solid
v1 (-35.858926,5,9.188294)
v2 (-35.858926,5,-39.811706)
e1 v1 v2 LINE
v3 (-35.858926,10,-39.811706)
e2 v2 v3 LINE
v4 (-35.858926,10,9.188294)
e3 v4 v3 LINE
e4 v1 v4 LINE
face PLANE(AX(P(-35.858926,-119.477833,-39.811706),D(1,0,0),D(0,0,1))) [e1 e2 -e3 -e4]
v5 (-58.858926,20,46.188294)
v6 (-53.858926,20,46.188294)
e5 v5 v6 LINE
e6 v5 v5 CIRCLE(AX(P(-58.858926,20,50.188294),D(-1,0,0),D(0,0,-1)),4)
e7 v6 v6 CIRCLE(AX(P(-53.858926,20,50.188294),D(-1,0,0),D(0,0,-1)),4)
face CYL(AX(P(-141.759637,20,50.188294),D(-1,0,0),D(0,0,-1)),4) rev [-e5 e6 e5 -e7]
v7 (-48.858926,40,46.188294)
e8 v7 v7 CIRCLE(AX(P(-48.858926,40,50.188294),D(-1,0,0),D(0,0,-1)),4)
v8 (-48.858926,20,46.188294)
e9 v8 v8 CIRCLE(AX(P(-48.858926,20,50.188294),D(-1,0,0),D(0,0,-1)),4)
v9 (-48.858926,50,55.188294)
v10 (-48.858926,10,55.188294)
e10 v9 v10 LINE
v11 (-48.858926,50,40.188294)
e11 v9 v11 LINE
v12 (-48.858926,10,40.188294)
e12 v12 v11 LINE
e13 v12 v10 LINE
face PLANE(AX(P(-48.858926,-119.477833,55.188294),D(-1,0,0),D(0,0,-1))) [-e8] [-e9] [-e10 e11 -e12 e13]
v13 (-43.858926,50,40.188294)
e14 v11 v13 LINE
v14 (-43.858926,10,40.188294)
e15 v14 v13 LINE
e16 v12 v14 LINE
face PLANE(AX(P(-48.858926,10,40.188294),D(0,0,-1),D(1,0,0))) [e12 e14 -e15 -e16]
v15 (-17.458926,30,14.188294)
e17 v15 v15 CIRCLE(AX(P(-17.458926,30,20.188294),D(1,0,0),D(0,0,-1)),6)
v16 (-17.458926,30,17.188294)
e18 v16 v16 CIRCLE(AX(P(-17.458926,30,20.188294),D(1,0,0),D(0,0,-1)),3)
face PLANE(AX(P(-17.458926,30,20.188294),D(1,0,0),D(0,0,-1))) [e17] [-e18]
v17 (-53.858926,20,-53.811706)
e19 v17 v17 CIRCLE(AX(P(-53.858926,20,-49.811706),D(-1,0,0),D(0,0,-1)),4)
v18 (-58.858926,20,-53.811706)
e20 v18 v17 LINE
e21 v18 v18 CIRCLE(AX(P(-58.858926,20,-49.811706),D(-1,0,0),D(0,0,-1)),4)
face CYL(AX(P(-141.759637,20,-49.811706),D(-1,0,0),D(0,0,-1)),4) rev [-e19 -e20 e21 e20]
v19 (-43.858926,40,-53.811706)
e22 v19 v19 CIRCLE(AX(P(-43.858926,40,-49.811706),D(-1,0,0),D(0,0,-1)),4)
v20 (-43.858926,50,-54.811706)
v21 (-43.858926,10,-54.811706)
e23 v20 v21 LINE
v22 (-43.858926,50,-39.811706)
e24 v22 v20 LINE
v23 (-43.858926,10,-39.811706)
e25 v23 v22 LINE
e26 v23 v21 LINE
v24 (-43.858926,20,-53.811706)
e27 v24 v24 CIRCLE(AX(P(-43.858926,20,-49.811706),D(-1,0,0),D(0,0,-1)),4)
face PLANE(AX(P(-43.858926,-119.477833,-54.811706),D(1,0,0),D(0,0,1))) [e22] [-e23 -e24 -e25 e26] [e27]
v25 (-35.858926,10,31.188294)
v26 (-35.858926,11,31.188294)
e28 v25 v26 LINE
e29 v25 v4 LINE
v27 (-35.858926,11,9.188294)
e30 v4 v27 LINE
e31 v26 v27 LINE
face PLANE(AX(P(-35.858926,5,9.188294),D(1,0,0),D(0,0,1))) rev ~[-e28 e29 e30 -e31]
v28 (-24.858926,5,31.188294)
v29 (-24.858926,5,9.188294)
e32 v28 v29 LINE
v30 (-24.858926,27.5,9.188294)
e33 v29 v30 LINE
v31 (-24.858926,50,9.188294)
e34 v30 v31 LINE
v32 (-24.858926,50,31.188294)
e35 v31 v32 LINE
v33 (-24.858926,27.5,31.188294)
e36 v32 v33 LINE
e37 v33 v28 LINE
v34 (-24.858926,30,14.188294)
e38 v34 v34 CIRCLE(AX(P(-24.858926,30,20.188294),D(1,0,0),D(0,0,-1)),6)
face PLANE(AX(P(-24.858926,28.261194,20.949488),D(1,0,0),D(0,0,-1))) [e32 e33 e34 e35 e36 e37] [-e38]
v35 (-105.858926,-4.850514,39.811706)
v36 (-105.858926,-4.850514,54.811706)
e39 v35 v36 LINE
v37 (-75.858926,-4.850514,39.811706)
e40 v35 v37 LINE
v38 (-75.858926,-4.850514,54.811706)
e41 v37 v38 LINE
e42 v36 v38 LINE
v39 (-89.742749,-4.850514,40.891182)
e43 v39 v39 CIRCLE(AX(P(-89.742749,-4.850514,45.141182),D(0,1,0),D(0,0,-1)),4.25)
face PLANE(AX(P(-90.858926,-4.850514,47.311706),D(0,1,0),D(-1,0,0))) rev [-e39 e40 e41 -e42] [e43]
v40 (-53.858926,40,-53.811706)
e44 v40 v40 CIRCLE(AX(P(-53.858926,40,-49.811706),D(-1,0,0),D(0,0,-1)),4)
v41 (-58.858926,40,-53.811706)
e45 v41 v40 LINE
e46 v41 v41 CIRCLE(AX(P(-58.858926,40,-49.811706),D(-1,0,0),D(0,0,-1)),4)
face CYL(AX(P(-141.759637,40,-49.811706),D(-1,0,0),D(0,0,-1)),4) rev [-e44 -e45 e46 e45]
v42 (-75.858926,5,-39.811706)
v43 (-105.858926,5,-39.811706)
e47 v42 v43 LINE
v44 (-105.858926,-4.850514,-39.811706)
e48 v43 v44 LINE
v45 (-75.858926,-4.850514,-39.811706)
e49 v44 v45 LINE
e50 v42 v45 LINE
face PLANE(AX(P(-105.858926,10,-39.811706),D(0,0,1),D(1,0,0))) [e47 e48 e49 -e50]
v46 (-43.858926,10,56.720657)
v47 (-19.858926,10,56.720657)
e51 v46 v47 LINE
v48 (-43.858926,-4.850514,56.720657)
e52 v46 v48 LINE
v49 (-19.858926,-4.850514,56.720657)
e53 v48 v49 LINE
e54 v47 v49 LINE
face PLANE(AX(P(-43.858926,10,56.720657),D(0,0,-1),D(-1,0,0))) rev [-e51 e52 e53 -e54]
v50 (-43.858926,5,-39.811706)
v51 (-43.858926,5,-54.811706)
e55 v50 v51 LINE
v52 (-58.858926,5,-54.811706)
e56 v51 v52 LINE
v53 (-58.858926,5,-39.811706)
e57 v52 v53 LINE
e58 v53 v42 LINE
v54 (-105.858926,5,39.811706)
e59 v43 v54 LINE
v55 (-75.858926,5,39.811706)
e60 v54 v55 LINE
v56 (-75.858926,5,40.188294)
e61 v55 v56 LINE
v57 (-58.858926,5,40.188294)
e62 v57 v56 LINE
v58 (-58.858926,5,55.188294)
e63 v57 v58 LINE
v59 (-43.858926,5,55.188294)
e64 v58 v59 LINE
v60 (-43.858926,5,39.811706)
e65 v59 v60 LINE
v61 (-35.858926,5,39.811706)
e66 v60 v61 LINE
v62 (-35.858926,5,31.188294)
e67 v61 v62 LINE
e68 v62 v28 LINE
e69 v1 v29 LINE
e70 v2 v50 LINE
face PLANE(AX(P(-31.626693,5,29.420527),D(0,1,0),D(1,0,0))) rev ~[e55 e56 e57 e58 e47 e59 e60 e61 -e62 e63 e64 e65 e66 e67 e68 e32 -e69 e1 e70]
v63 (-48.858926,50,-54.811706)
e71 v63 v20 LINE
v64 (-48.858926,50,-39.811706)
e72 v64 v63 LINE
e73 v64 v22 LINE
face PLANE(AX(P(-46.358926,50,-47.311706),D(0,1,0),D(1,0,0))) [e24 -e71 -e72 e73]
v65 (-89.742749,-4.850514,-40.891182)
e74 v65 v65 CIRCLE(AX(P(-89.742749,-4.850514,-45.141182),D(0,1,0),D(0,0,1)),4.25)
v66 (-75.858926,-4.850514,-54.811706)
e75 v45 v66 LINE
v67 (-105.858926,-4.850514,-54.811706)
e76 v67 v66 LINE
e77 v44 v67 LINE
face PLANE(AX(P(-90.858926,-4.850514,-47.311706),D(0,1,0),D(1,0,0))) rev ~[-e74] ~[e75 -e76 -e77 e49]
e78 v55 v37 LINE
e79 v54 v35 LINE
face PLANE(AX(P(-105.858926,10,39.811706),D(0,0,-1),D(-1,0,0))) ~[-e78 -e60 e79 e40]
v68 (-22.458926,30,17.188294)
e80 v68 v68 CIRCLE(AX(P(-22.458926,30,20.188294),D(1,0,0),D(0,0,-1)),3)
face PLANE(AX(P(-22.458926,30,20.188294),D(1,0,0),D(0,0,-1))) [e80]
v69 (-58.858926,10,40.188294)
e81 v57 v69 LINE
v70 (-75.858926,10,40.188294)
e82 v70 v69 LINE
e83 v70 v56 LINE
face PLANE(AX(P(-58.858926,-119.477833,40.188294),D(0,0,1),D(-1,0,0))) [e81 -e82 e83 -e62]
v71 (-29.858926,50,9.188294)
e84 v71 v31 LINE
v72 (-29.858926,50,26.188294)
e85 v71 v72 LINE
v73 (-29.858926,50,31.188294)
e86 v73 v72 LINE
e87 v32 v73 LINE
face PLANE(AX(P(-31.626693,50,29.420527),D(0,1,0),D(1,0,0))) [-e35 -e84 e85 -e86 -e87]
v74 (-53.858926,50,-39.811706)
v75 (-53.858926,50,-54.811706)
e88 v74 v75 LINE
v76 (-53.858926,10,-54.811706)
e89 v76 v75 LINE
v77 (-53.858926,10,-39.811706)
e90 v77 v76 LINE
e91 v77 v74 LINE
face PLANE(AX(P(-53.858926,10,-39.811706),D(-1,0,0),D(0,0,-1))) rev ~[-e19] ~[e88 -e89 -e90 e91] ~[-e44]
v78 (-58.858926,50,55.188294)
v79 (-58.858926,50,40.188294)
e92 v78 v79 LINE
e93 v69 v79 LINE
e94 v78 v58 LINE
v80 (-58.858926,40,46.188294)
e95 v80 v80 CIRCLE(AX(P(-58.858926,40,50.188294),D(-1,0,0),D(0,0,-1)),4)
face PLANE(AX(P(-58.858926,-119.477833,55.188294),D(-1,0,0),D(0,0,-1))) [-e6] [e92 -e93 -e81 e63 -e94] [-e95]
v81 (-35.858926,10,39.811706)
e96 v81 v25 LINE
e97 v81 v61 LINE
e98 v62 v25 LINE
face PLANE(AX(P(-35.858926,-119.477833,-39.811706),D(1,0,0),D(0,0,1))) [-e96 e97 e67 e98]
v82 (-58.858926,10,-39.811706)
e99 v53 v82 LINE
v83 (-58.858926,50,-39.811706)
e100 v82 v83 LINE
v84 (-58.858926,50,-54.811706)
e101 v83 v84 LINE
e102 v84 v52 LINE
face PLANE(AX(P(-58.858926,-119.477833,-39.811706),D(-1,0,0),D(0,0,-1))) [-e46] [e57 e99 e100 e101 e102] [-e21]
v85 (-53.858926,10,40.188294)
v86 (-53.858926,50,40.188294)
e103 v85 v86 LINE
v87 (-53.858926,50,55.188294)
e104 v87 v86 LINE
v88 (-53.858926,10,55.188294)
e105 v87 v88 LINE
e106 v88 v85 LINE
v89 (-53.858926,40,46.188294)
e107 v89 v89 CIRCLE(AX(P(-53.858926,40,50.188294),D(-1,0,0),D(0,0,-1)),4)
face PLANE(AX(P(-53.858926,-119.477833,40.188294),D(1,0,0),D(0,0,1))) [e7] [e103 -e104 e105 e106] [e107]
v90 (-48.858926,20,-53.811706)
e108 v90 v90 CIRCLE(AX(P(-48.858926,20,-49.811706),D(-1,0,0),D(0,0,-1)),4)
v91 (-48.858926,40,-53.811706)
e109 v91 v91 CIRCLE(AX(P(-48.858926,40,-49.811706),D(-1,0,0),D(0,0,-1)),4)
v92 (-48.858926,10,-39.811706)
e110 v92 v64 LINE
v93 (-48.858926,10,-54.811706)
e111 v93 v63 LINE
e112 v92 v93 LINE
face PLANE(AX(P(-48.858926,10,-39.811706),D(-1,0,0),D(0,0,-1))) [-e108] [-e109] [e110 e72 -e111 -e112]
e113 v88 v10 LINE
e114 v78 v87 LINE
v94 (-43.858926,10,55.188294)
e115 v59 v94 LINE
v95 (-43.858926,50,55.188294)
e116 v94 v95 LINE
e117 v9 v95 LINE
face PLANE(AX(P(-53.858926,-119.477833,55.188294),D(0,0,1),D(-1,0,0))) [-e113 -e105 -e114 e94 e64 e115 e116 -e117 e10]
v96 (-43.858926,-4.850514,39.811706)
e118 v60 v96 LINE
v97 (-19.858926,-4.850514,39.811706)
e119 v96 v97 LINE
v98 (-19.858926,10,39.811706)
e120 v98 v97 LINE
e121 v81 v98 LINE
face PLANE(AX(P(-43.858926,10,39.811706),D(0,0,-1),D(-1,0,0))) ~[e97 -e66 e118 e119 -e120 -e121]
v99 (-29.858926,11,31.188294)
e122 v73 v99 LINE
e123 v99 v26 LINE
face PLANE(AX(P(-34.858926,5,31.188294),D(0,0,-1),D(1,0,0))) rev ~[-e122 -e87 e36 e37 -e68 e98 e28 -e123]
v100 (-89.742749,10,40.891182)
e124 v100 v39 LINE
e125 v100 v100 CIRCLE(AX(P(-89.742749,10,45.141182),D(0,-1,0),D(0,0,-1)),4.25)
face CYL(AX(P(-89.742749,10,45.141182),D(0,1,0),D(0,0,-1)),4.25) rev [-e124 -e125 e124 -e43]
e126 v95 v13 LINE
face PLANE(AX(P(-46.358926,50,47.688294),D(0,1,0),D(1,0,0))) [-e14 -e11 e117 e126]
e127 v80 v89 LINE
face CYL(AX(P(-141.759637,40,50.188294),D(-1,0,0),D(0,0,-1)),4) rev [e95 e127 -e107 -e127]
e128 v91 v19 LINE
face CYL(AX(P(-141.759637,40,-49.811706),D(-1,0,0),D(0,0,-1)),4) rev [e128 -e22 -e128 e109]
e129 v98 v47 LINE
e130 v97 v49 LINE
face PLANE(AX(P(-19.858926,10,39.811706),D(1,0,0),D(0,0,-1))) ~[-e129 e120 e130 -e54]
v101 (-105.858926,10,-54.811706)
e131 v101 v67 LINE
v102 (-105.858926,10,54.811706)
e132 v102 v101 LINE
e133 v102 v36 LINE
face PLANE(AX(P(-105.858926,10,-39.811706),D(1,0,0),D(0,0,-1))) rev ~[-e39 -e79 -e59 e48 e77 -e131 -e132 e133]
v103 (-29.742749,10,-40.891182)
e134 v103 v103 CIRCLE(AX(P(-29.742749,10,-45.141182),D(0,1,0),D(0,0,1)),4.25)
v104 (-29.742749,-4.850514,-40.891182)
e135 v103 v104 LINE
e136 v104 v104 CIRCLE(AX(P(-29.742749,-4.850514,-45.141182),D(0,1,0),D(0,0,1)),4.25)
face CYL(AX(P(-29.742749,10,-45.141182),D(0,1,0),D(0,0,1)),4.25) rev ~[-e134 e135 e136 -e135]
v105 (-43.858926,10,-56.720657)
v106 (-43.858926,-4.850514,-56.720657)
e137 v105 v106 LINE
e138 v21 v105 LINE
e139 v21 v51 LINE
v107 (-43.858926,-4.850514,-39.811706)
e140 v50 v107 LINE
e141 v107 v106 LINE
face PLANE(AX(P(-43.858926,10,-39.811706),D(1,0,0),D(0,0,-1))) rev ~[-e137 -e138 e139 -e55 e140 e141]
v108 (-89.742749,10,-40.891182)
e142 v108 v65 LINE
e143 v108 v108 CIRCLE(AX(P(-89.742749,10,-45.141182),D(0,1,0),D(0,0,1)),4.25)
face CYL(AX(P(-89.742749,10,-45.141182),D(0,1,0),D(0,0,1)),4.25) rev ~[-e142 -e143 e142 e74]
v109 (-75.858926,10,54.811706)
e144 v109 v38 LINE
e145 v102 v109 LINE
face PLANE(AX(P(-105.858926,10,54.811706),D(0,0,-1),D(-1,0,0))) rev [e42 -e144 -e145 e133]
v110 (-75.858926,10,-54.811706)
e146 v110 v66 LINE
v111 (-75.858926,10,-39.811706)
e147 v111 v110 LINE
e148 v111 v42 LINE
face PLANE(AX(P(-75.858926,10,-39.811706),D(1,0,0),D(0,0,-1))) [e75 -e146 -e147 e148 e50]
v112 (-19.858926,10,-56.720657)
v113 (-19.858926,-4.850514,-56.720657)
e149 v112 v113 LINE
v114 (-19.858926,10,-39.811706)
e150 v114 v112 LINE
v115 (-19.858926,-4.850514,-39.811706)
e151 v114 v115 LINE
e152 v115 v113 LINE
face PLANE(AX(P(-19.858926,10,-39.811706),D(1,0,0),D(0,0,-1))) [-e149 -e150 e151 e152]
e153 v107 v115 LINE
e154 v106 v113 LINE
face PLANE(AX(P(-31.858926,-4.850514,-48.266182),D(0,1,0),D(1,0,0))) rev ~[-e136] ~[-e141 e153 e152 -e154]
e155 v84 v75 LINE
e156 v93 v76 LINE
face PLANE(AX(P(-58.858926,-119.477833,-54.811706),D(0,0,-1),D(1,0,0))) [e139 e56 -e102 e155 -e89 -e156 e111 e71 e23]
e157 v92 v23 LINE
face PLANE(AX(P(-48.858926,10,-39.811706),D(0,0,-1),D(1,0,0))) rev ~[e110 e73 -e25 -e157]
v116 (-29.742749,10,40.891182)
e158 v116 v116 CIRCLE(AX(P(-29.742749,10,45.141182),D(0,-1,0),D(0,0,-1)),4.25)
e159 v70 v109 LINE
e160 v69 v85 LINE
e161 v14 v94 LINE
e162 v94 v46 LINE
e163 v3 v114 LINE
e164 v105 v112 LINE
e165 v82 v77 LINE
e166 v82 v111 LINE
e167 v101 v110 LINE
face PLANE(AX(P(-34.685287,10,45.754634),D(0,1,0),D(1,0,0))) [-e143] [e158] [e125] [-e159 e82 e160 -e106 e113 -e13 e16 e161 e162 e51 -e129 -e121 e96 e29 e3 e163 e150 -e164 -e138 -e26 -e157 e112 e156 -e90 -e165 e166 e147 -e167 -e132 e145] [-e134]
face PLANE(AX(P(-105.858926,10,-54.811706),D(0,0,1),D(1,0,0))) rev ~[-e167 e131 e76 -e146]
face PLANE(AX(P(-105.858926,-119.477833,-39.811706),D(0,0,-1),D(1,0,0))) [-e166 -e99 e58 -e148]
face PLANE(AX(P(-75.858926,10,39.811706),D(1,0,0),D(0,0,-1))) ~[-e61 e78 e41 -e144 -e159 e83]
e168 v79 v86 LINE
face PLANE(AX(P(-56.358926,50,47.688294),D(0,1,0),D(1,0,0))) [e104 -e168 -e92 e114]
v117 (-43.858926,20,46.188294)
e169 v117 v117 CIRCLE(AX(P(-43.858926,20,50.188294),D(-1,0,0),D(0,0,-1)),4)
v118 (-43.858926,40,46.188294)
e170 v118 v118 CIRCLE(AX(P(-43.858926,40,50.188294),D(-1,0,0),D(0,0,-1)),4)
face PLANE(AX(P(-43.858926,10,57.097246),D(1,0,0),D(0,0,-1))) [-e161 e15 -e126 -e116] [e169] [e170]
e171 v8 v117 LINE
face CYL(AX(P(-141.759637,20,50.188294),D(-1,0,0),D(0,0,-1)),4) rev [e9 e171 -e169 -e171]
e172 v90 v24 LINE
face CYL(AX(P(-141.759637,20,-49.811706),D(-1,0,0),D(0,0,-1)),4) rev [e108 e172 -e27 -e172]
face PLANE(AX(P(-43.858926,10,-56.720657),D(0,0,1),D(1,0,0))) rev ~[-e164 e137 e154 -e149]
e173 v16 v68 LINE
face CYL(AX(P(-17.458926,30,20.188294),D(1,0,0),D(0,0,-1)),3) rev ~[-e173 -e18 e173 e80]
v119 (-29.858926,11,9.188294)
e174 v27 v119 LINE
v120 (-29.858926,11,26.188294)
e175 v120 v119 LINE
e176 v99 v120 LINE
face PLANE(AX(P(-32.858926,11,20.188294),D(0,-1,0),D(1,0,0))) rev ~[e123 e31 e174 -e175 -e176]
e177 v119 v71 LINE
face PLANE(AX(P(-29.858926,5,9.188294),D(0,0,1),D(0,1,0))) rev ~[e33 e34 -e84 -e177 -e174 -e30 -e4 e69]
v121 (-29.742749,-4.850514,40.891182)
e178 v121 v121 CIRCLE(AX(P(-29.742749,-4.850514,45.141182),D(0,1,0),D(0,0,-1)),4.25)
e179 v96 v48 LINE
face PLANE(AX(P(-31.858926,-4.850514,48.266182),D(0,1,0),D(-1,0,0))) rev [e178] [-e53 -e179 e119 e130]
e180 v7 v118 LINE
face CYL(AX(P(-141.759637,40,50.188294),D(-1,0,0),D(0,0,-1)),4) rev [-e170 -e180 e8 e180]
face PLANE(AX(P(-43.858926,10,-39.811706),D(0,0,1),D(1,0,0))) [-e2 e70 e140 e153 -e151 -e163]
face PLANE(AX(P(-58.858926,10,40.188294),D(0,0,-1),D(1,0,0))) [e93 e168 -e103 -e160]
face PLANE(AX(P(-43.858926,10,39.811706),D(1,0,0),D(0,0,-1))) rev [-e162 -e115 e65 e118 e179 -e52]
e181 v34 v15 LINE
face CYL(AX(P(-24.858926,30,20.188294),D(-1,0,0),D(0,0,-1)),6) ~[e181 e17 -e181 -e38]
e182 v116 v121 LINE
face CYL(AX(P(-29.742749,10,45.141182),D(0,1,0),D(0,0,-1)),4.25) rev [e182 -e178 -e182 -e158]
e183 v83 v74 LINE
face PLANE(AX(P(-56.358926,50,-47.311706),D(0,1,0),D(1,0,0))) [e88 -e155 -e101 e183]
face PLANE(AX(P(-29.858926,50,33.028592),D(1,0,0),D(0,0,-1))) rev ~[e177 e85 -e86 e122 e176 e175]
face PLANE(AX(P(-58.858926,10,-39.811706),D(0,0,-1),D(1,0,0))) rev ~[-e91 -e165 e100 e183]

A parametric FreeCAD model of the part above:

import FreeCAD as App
import Part
import Sketcher
from FreeCAD import Vector
Q = App.Units.Quantity

doc = App.newDocument("Part")
body = doc.addObject("PartDesign::Body", "Body")

# Sketch on XZ plane
sketch1 = doc.addObject("Sketcher::SketchObject", "Sketch")
body.addObject(sketch1)
sketch1.AttachmentSupport = (doc.XZ_Plane, [""])
sketch1.MapMode = "FlatFace"
sketch1.addGeometry([
    Part.LineSegment(Vector(-105.858926, -60.831255, 0), Vector(-105.858926, 60.831255, 0)),
    Part.LineSegment(Vector(-105.858926, 60.831255, 0), Vector(105.858926, 60.831255, 0)),
    Part.LineSegment(Vector(105.858926, 60.831255, 0), Vector(105.858926, -60.831255, 0)),
    Part.LineSegment(Vector(105.858926, -60.831255, 0), Vector(-105.858926, -60.831255, 0)),
], False)
sketch1.addConstraint([
    Sketcher.Constraint("Coincident", 0, 2, 1, 1),
    Sketcher.Constraint("Coincident", 1, 2, 2, 1),
    Sketcher.Constraint("Coincident", 2, 2, 3, 1),
    Sketcher.Constraint("Coincident", 3, 2, 0, 1),
    Sketcher.Constraint("Vertical", 0),
    Sketcher.Constraint("Horizontal", 1),
    Sketcher.Constraint("Vertical", 2),
    Sketcher.Constraint("Horizontal", 3),
    Sketcher.Constraint("Symmetric", 0, 2, 2, 2, -1, 1),
    Sketcher.Constraint("DistanceX", 1, 1, 1, 2, Q("211.717851 mm")),
    Sketcher.Constraint("DistanceY", 0, 1, 0, 2, Q("121.662509 mm")),
])
pad1 = doc.addObject("PartDesign::Pad", "Pad")
body.addObject(pad1)
pad1.Profile = sketch1
pad1.Length = 10
pad1.Reversed = True

# Sketch on XZ plane
sketch2 = doc.addObject("Sketcher::SketchObject", "Sketch001")
body.addObject(sketch2)
sketch2.AttachmentSupport = (doc.XZ_Plane, [""])
sketch2.MapMode = "FlatFace"
sketch2.AttachmentOffset = App.Placement(Vector(0, 0, -10), App.Rotation())
sketch2.addGeometry([
    Part.LineSegment(Vector(-48.858926, -54.811706, 0), Vector(-48.858926, -39.811706, 0)),  # 0
    Part.LineSegment(Vector(-48.858926, -39.811706, 0), Vector(-43.858926, -39.811706, 0)),  # 1
    Part.LineSegment(Vector(-43.858926, -39.811706, 0), Vector(-43.858926, -54.811706, 0)),  # 2
    Part.LineSegment(Vector(-43.858926, -54.811706, 0), Vector(-48.858926, -54.811706, 0)),  # 3
    Part.LineSegment(Vector(-58.858926, -54.811706, 0), Vector(-58.858926, -39.811706, 0)),  # 4
    Part.LineSegment(Vector(-58.858926, -39.811706, 0), Vector(-53.858926, -39.811706, 0)),  # 5
    Part.LineSegment(Vector(-53.858926, -39.811706, 0), Vector(-53.858926, -54.811706, 0)),  # 6
    Part.LineSegment(Vector(-53.858926, -54.811706, 0), Vector(-58.858926, -54.811706, 0)),  # 7
    Part.LineSegment(Vector(-48.858926, 40.188294, 0), Vector(-48.858926, 55.188294, 0)),  # 8
    Part.LineSegment(Vector(-48.858926, 55.188294, 0), Vector(-43.858926, 55.188294, 0)),  # 9
    Part.LineSegment(Vector(-43.858926, 55.188294, 0), Vector(-43.858926, 40.188294, 0)),  # 10
    Part.LineSegment(Vector(-43.858926, 40.188294, 0), Vector(-48.858926, 40.188294, 0)),  # 11
    Part.LineSegment(Vector(-58.858926, 40.188294, 0), Vector(-58.858926, 55.188294, 0)),  # 12
    Part.LineSegment(Vector(-58.858926, 55.188294, 0), Vector(-53.858926, 55.188294, 0)),  # 13
    Part.LineSegment(Vector(-53.858926, 55.188294, 0), Vector(-53.858926, 40.188294, 0)),  # 14
    Part.LineSegment(Vector(-53.858926, 40.188294, 0), Vector(-58.858926, 40.188294, 0)),  # 15
], False)
sketch2.addConstraint([
    Sketcher.Constraint("Coincident", 0, 2, 1, 1),
    Sketcher.Constraint("Coincident", 1, 2, 2, 1),
    Sketcher.Constraint("Coincident", 2, 2, 3, 1),
    Sketcher.Constraint("Coincident", 3, 2, 0, 1),
    Sketcher.Constraint("Coincident", 4, 2, 5, 1),
    Sketcher.Constraint("Coincident", 5, 2, 6, 1),
    Sketcher.Constraint("Coincident", 6, 2, 7, 1),
    Sketcher.Constraint("Coincident", 7, 2, 4, 1),
    Sketcher.Constraint("Coincident", 8, 2, 9, 1),
    Sketcher.Constraint("Coincident", 9, 2, 10, 1),
    Sketcher.Constraint("Coincident", 10, 2, 11, 1),
    Sketcher.Constraint("Coincident", 11, 2, 8, 1),
    Sketcher.Constraint("Coincident", 12, 2, 13, 1),
    Sketcher.Constraint("Coincident", 13, 2, 14, 1),
    Sketcher.Constraint("Coincident", 14, 2, 15, 1),
    Sketcher.Constraint("Coincident", 15, 2, 12, 1),
    Sketcher.Constraint("Vertical", 0),
    Sketcher.Constraint("Horizontal", 1),
    Sketcher.Constraint("Vertical", 2),
    Sketcher.Constraint("Horizontal", 3),
    Sketcher.Constraint("Vertical", 4),
    Sketcher.Constraint("Horizontal", 5),
    Sketcher.Constraint("Vertical", 6),
    Sketcher.Constraint("Horizontal", 7),
    Sketcher.Constraint("Vertical", 8),
    Sketcher.Constraint("Horizontal", 9),
    Sketcher.Constraint("Vertical", 10),
    Sketcher.Constraint("Horizontal", 11),
    Sketcher.Constraint("Vertical", 12),
    Sketcher.Constraint("Horizontal", 13),
    Sketcher.Constraint("Vertical", 14),
    Sketcher.Constraint("Horizontal", 15),
    Sketcher.Constraint("Horizontal", 1, 2, 4, 2),
    Sketcher.Constraint("Horizontal", 3, 2, 6, 2),
    Sketcher.Constraint("Horizontal", 9, 2, 12, 2),
    Sketcher.Constraint("Horizontal", 11, 2, 14, 2),
    Sketcher.Constraint("Vertical", 3, 2, 8, 2),
    Sketcher.Constraint("Vertical", 2, 2, 9, 2),
    Sketcher.Constraint("Vertical", 7, 2, 12, 2),
    Sketcher.Constraint("Vertical", 6, 2, 13, 2),
    Sketcher.Constraint("Equal", 3, 5),
    Sketcher.Constraint("Equal", 6, 8),
    Sketcher.Constraint("DistanceX", 1, 1, 1, 2, Q("5 mm")),
    Sketcher.Constraint("DistanceY", 0, 1, 0, 2, Q("15 mm")),
    Sketcher.Constraint("DistanceX", 4, 2, 0, 2, Q("10 mm")),
    Sketcher.Constraint("DistanceY", 0, 2, 8, 2, Q("95 mm")),
    Sketcher.Constraint("DistanceX", 0, 2, -1, 1, Q("48.858926 mm")),
    Sketcher.Constraint("DistanceY", 0, 2, -1, 1, Q("39.811706 mm")),
])
pad2 = doc.addObject("PartDesign::Pad", "Pad001")
body.addObject(pad2)
pad2.Profile = sketch2
pad2.Length = 40
pad2.Reversed = True

# Sketch on XZ plane
sketch3 = doc.addObject("Sketcher::SketchObject", "Sketch002")
body.addObject(sketch3)
sketch3.AttachmentSupport = (doc.XZ_Plane, [""])
sketch3.MapMode = "FlatFace"
sketch3.AttachmentOffset = App.Placement(Vector(0, 0, -10), App.Rotation())
sketch3.addGeometry([
    Part.LineSegment(Vector(-131.784, -86.756, 0), Vector(-131.784, 86.756, 0)),  # 0
    Part.LineSegment(Vector(-131.784, 86.756, 0), Vector(131.784, 86.756, 0)),  # 1
    Part.LineSegment(Vector(131.784, 86.756, 0), Vector(131.784, -86.756, 0)),  # 2
    Part.LineSegment(Vector(131.784, -86.756, 0), Vector(-131.784, -86.756, 0)),  # 3
    Part.LineSegment(Vector(-106.714815, 40.188294, 0), Vector(-105.858926, -39.811706, 0)),  # 4
    Part.LineSegment(Vector(-105.858926, -39.811706, 0), Vector(-58.858926, -39.811706, 0)),  # 5
    Part.LineSegment(Vector(-58.858926, -39.811706, 0), Vector(-58.858926, -54.811706, 0)),  # 6
    Part.LineSegment(Vector(-58.858926, -54.811706, 0), Vector(-43.858926, -54.811706, 0)),  # 7
    Part.LineSegment(Vector(-43.858926, -54.811706, 0), Vector(-43.858926, -39.811706, 0)),  # 8
    Part.LineSegment(Vector(-43.858926, -39.811706, 0), Vector(-35.858926, -39.811706, 0)),  # 9
    Part.LineSegment(Vector(-35.858926, -39.811706, 0), Vector(-35.858926, 40.188294, 0)),  # 10
    Part.LineSegment(Vector(-35.858926, 40.188294, 0), Vector(-43.858926, 40.188294, 0)),  # 11
    Part.LineSegment(Vector(-43.858926, 40.188294, 0), Vector(-43.858926, 55.188294, 0)),  # 12
    Part.LineSegment(Vector(-43.858926, 55.188294, 0), Vector(-48.858926, 55.188294, 0)),  # 13
    Part.LineSegment(Vector(-48.858926, 55.188294, 0), Vector(-48.858926, 40.188294, 0)),  # 14
    Part.LineSegment(Vector(-48.858926, 40.188294, 0), Vector(-53.858926, 40.188294, 0)),  # 15
    Part.LineSegment(Vector(-53.858926, 40.188294, 0), Vector(-53.858926, 55.188294, 0)),  # 16
    Part.LineSegment(Vector(-53.858926, 55.188294, 0), Vector(-58.858926, 55.188294, 0)),  # 17
    Part.LineSegment(Vector(-58.858926, 55.188294, 0), Vector(-58.858926, 40.188294, 0)),  # 18
    Part.LineSegment(Vector(-58.858926, 40.188294, 0), Vector(-106.714815, 40.188294, 0)),  # 19
], False)
sketch3.addConstraint([
    Sketcher.Constraint("Coincident", 0, 2, 1, 1),
    Sketcher.Constraint("Coincident", 1, 2, 2, 1),
    Sketcher.Constraint("Coincident", 2, 2, 3, 1),
    Sketcher.Constraint("Coincident", 3, 2, 0, 1),
    Sketcher.Constraint("Coincident", 4, 2, 5, 1),
    Sketcher.Constraint("Coincident", 5, 2, 6, 1),
    Sketcher.Constraint("Coincident", 6, 2, 7, 1),
    Sketcher.Constraint("Coincident", 7, 2, 8, 1),
    Sketcher.Constraint("Coincident", 8, 2, 9, 1),
    Sketcher.Constraint("Coincident", 9, 2, 10, 1),
    Sketcher.Constraint("Coincident", 10, 2, 11, 1),
    Sketcher.Constraint("Coincident", 11, 2, 12, 1),
    Sketcher.Constraint("Coincident", 12, 2, 13, 1),
    Sketcher.Constraint("Coincident", 13, 2, 14, 1),
    Sketcher.Constraint("Coincident", 14, 2, 15, 1),
    Sketcher.Constraint("Coincident", 15, 2, 16, 1),
    Sketcher.Constraint("Coincident", 16, 2, 17, 1),
    Sketcher.Constraint("Coincident", 17, 2, 18, 1),
    Sketcher.Constraint("Coincident", 18, 2, 19, 1),
    Sketcher.Constraint("Coincident", 19, 2, 4, 1),
    Sketcher.Constraint("Vertical", 0),
    Sketcher.Constraint("Horizontal", 1),
    Sketcher.Constraint("Vertical", 2),
    Sketcher.Constraint("Horizontal", 3),
    Sketcher.Constraint("Horizontal", 5),
    Sketcher.Constraint("Vertical", 6),
    Sketcher.Constraint("Horizontal", 7),
    Sketcher.Constraint("Vertical", 8),
    Sketcher.Constraint("Horizontal", 9),
    Sketcher.Constraint("Vertical", 10),
    Sketcher.Constraint("Horizontal", 11),
    Sketcher.Constraint("Vertical", 12),
    Sketcher.Constraint("Horizontal", 13),
    Sketcher.Constraint("Vertical", 14),
    Sketcher.Constraint("Horizontal", 15),
    Sketcher.Constraint("Vertical", 16),
    Sketcher.Constraint("Horizontal", 17),
    Sketcher.Constraint("Vertical", 18),
    Sketcher.Constraint("Horizontal", 19),
    Sketcher.Constraint("Symmetric", 0, 2, 2, 2, -1, 1),
    Sketcher.Constraint("Horizontal", 5, 2, 8, 2),
    Sketcher.Constraint("Horizontal", 11, 2, 14, 2),
    Sketcher.Constraint("Horizontal", 13, 2, 16, 2),
    Sketcher.Constraint("Horizontal", 15, 2, 18, 2),
    Sketcher.Constraint("Vertical", 8, 2, 11, 2),
    Sketcher.Constraint("Vertical", 6, 2, 17, 2),
    Sketcher.Constraint("Equal", 13, 15),
    Sketcher.Constraint("Equal", 15, 17),
    Sketcher.Constraint("Equal", 7, 6),
    Sketcher.Constraint("Equal", 8, 12),
    Sketcher.Constraint("DistanceX", 5, 1, 5, 2, Q("47 mm")),
    Sketcher.Constraint("DistanceX", 7, 1, 7, 2, Q("15 mm")),
    Sketcher.Constraint("DistanceX", 9, 1, 9, 2, Q("8 mm")),
    Sketcher.Constraint("DistanceY", 10, 1, 10, 2, Q("80 mm")),
    Sketcher.Constraint("DistanceX", 1, 1, 1, 2, Q("263.568 mm")),
    Sketcher.Constraint("DistanceY", 0, 1, 0, 2, Q("173.512 mm")),
    Sketcher.Constraint("DistanceX", 19, 2, 19, 1, Q("47.85589 mm")),
    Sketcher.Constraint("DistanceX", 4, 2, -1, 1, Q("105.858926 mm")),
    Sketcher.Constraint("DistanceY", 4, 2, -1, 1, Q("39.811706 mm")),
])
pocket1 = doc.addObject("PartDesign::Pocket", "Pocket")
body.addObject(pocket1)
pocket1.Profile = sketch3
pocket1.Type = "ThroughAll"
pocket1.Midplane = True

# Sketch on XZ plane
sketch4 = doc.addObject("Sketcher::SketchObject", "Sketch003")
body.addObject(sketch4)
sketch4.AttachmentSupport = (doc.XZ_Plane, [""])
sketch4.MapMode = "FlatFace"
sketch4.addGeometry([
    Part.LineSegment(Vector(-58.858926, 55.188294, 0), Vector(-58.858926, 40.188294, 0)),
    Part.LineSegment(Vector(-58.858926, 40.188294, 0), Vector(-43.858926, 40.188294, 0)),
    Part.LineSegment(Vector(-43.858926, 40.188294, 0), Vector(-43.858926, 55.188294, 0)),
    Part.LineSegment(Vector(-43.858926, 55.188294, 0), Vector(-58.858926, 55.188294, 0)),
], False)
sketch4.addConstraint([
    Sketcher.Constraint("Coincident", 0, 2, 1, 1),
    Sketcher.Constraint("Coincident", 1, 2, 2, 1),
    Sketcher.Constraint("Coincident", 2, 2, 3, 1),
    Sketcher.Constraint("Coincident", 3, 2, 0, 1),
    Sketcher.Constraint("Vertical", 0),
    Sketcher.Constraint("Horizontal", 1),
    Sketcher.Constraint("Vertical", 2),
    Sketcher.Constraint("Horizontal", 3),
    Sketcher.Constraint("Equal", 3, 0),
    Sketcher.Constraint("DistanceX", 1, 1, 1, 2, Q("15 mm")),
    Sketcher.Constraint("DistanceX", 0, 2, -1, 1, Q("58.858926 mm")),
    Sketcher.Constraint("DistanceY", -1, 1, 0, 2, Q("40.188294 mm")),
])
pad3 = doc.addObject("PartDesign::Pad", "Pad002")
body.addObject(pad3)
pad3.Profile = sketch4
pad3.Length = 10
pad3.Reversed = True

# Sketch on XZ plane
sketch5 = doc.addObject("Sketcher::SketchObject", "Sketch004")
body.addObject(sketch5)
sketch5.AttachmentSupport = (doc.XZ_Plane, [""])
sketch5.MapMode = "FlatFace"
sketch5.addGeometry([
    Part.LineSegment(Vector(-225.486095, 144.406419, 0), Vector(-225.486095, -64.432201, 0)),
    Part.LineSegment(Vector(-225.486095, -64.432201, 0), Vector(25.562074, -64.432201, 0)),
    Part.LineSegment(Vector(25.562074, -64.432201, 0), Vector(25.562074, 144.406419, 0)),
    Part.LineSegment(Vector(25.562074, 144.406419, 0), Vector(-225.486095, 144.406419, 0)),
], False)
sketch5.addConstraint([
    Sketcher.Constraint("Coincident", 0, 2, 1, 1),
    Sketcher.Constraint("Coincident", 1, 2, 2, 1),
    Sketcher.Constraint("Coincident", 2, 2, 3, 1),
    Sketcher.Constraint("Coincident", 3, 2, 0, 1),
    Sketcher.Constraint("Vertical", 0),
    Sketcher.Constraint("Horizontal", 1),
    Sketcher.Constraint("Vertical", 2),
    Sketcher.Constraint("Horizontal", 3),
    Sketcher.Constraint("DistanceX", 1, 1, 1, 2, Q("251.048169 mm")),
    Sketcher.Constraint("DistanceY", 0, 2, 0, 1, Q("208.83862 mm")),
    Sketcher.Constraint("DistanceY", 0, 2, -1, 1, Q("64.432201 mm")),
    Sketcher.Constraint("DistanceX", 0, 2, -1, 1, Q("225.486095 mm")),
])
pocket2 = doc.addObject("PartDesign::Pocket", "Pocket001")
body.addObject(pocket2)
pocket2.Profile = sketch5
pocket2.Type = "TwoLengths"
pocket2.Length = 130.428976
pocket2.Length2 = 5
pocket2.Reversed = True

# Sketch on YZ plane
sketch6 = doc.addObject("Sketcher::SketchObject", "Sketch005")
body.addObject(sketch6)
sketch6.AttachmentSupport = (doc.YZ_Plane, [""])
sketch6.MapMode = "FlatFace"
sketch6.AttachmentOffset = App.Placement(Vector(0, 0, -43.858926), App.Rotation())
sketch6.addGeometry([
    Part.Circle(Vector(40, 50.188294, 0), Vector(0, 0, 1), 4),
    Part.Circle(Vector(20, 50.188294, 0), Vector(0, 0, 1), 4),
    Part.Circle(Vector(40, -49.811706, 0), Vector(0, 0, 1), 4),
    Part.Circle(Vector(20, -49.811706, 0), Vector(0, 0, 1), 4),
], False)
sketch6.addConstraint([
    Sketcher.Constraint("Equal", 0, 1),
    Sketcher.Constraint("Equal", 1, 2),
    Sketcher.Constraint("Equal", 2, 3),
    Sketcher.Constraint("Horizontal", 0, 3, 1, 3),
    Sketcher.Constraint("Horizontal", 2, 3, 3, 3),
    Sketcher.Constraint("Vertical", 0, 3, 2, 3),
    Sketcher.Constraint("Vertical", 1, 3, 3, 3),
    Sketcher.Constraint("Diameter", 0, Q("8 mm")),
    Sketcher.Constraint("DistanceX", -1, 1, 0, 3, Q("40 mm")),
    Sketcher.Constraint("DistanceX", -1, 1, 1, 3, Q("20 mm")),
    Sketcher.Constraint("DistanceY", 2, 3, 0, 3, Q("100 mm")),
    Sketcher.Constraint("DistanceY", -1, 1, 0, 3, Q("50.188294 mm")),
])
pocket3 = doc.addObject("PartDesign::Pocket", "Pocket002")
body.addObject(pocket3)
pocket3.Profile = sketch6
pocket3.Type = "ThroughAll"
pocket3.Midplane = True

# Sketch on XZ plane
sketch7 = doc.addObject("Sketcher::SketchObject", "Sketch006")
body.addObject(sketch7)
sketch7.AttachmentSupport = (doc.XZ_Plane, [""])
sketch7.MapMode = "FlatFace"
sketch7.AttachmentOffset = App.Placement(Vector(0, 0, -5), App.Rotation())
sketch7.addGeometry([
    Part.LineSegment(Vector(-35.858926, 31.188294, 0), Vector(-35.858926, 9.188294, 0)),
    Part.LineSegment(Vector(-35.858926, 9.188294, 0), Vector(-29.858926, 9.188294, 0)),
    Part.LineSegment(Vector(-29.858926, 9.188294, 0), Vector(-29.858926, 31.188294, 0)),
    Part.LineSegment(Vector(-29.858926, 31.188294, 0), Vector(-35.858926, 31.188294, 0)),
], False)
sketch7.addConstraint([
    Sketcher.Constraint("Coincident", 0, 2, 1, 1),
    Sketcher.Constraint("Coincident", 1, 2, 2, 1),
    Sketcher.Constraint("Coincident", 2, 2, 3, 1),
    Sketcher.Constraint("Coincident", 3, 2, 0, 1),
    Sketcher.Constraint("Vertical", 0),
    Sketcher.Constraint("Horizontal", 1),
    Sketcher.Constraint("Vertical", 2),
    Sketcher.Constraint("Horizontal", 3),
    Sketcher.Constraint("DistanceX", 1, 1, 1, 2, Q("6 mm")),
    Sketcher.Constraint("DistanceY", 0, 2, 0, 1, Q("22 mm")),
    Sketcher.Constraint("DistanceX", 0, 2, -1, 1, Q("35.858926 mm")),
    Sketcher.Constraint("DistanceY", -1, 1, 0, 2, Q("9.188294 mm")),
])
pad4 = doc.addObject("PartDesign::Pad", "Pad003")
body.addObject(pad4)
pad4.Profile = sketch7
pad4.Length = 6
pad4.Reversed = True

# Sketch on XZ plane
sketch8 = doc.addObject("Sketcher::SketchObject", "Sketch007")
body.addObject(sketch8)
sketch8.AttachmentSupport = (doc.XZ_Plane, [""])
sketch8.MapMode = "FlatFace"
sketch8.AttachmentOffset = App.Placement(Vector(0, 0, -5), App.Rotation())
sketch8.addGeometry([
    Part.LineSegment(Vector(-34.858926, 39.188294, 0), Vector(-34.858926, 31.188294, 0)),
    Part.LineSegment(Vector(-34.858926, 31.188294, 0), Vector(-29.207794, 25.537162, 0)),
    Part.LineSegment(Vector(-29.207794, 25.537162, 0), Vector(-29.207794, 39.188294, 0)),
    Part.LineSegment(Vector(-29.207794, 39.188294, 0), Vector(-34.858926, 39.188294, 0)),
], False)
sketch8.addConstraint([
    Sketcher.Constraint("Coincident", 0, 2, 1, 1),
    Sketcher.Constraint("Coincident", 1, 2, 2, 1),
    Sketcher.Constraint("Coincident", 2, 2, 3, 1),
    Sketcher.Constraint("Coincident", 3, 2, 0, 1),
    Sketcher.Constraint("Vertical", 0),
    Sketcher.Constraint("Vertical", 2),
    Sketcher.Constraint("Horizontal", 3),
    Sketcher.Constraint("DistanceY", 0, 2, 0, 1, Q("8 mm")),
    Sketcher.Constraint("Angle", 1, Q("-45 deg")),
    Sketcher.Constraint("DistanceX", 3, 2, 3, 1, Q("5.651132 mm")),
    Sketcher.Constraint("DistanceX", 0, 2, -1, 1, Q("34.858926 mm")),
    Sketcher.Constraint("DistanceY", -1, 1, 0, 2, Q("31.188294 mm")),
])
pocket4 = doc.addObject("PartDesign::Pocket", "Pocket003")
body.addObject(pocket4)
pocket4.Profile = sketch8
pocket4.Type = "ThroughAll"
pocket4.Midplane = True

# Sketch on YZ plane
sketch9 = doc.addObject("Sketcher::SketchObject", "Sketch008")
body.addObject(sketch9)
sketch9.AttachmentSupport = (doc.YZ_Plane, [""])
sketch9.MapMode = "FlatFace"
sketch9.AttachmentOffset = App.Placement(Vector(0, 0, -29.858926), App.Rotation())
sketch9.addGeometry([
    Part.LineSegment(Vector(5, 31.188294, 0), Vector(5, 9.188294, 0)),
    Part.LineSegment(Vector(5, 9.188294, 0), Vector(50, 9.188294, 0)),
    Part.LineSegment(Vector(50, 9.188294, 0), Vector(50, 31.188294, 0)),
    Part.LineSegment(Vector(50, 31.188294, 0), Vector(5, 31.188294, 0)),
], False)
sketch9.addConstraint([
    Sketcher.Constraint("Coincident", 0, 2, 1, 1),
    Sketcher.Constraint("Coincident", 1, 2, 2, 1),
    Sketcher.Constraint("Coincident", 2, 2, 3, 1),
    Sketcher.Constraint("Coincident", 3, 2, 0, 1),
    Sketcher.Constraint("Vertical", 0),
    Sketcher.Constraint("Horizontal", 1),
    Sketcher.Constraint("Vertical", 2),
    Sketcher.Constraint("Horizontal", 3),
    Sketcher.Constraint("DistanceX", 1, 1, 1, 2, Q("45 mm")),
    Sketcher.Constraint("DistanceY", 0, 2, 0, 1, Q("22 mm")),
    Sketcher.Constraint("DistanceX", -1, 1, 0, 2, Q("5 mm")),
    Sketcher.Constraint("DistanceY", -1, 1, 0, 2, Q("9.188294 mm")),
])
pad5 = doc.addObject("PartDesign::Pad", "Pad004")
body.addObject(pad5)
pad5.Profile = sketch9
pad5.Length = 5

# Sketch on YZ plane
sketch10 = doc.addObject("Sketcher::SketchObject", "Sketch009")
body.addObject(sketch10)
sketch10.AttachmentSupport = (doc.YZ_Plane, [""])
sketch10.MapMode = "FlatFace"
sketch10.AttachmentOffset = App.Placement(Vector(0, 0, -24.858926), App.Rotation())
sketch10.addGeometry(Part.Circle(Vector(27.5, 20.188294, 0), Vector(0, 0, 1), 11), False)
sketch10.addConstraint([
    Sketcher.Constraint("Diameter", 0, Q("22 mm")),
    Sketcher.Constraint("DistanceX", -1, 1, 0, 3, Q("27.5 mm")),
    Sketcher.Constraint("DistanceY", -1, 1, 0, 3, Q("20.188294 mm")),
])
pad6 = doc.addObject("PartDesign::Pad", "Pad005")
body.addObject(pad6)
pad6.Profile = sketch10
pad6.Length = 0.6
pad6.Reversed = True

# Sketch on YZ plane
sketch11 = doc.addObject("Sketcher::SketchObject", "Sketch010")
body.addObject(sketch11)
sketch11.AttachmentSupport = (doc.YZ_Plane, [""])
sketch11.MapMode = "FlatFace"
sketch11.AttachmentOffset = App.Placement(Vector(0, 0, -24.858926), App.Rotation())
sketch11.addGeometry(Part.Circle(Vector(27.5, 20.188294, 0), Vector(0, 0, 1), 6), False)
sketch11.addConstraint([
    Sketcher.Constraint("Diameter", 0, Q("12 mm")),
    Sketcher.Constraint("DistanceX", -1, 1, 0, 3, Q("27.5 mm")),
    Sketcher.Constraint("DistanceY", -1, 1, 0, 3, Q("20.188294 mm")),
])
pad7 = doc.addObject("PartDesign::Pad", "Pad006")
body.addObject(pad7)
pad7.Profile = sketch11
pad7.Length = 7.4

# Sketch on YZ plane
sketch12 = doc.addObject("Sketcher::SketchObject", "Sketch011")
body.addObject(sketch12)
sketch12.AttachmentSupport = (doc.YZ_Plane, [""])
sketch12.MapMode = "FlatFace"
sketch12.AttachmentOffset = App.Placement(Vector(0, 0, -17.458926), App.Rotation())
sketch12.addGeometry(Part.Circle(Vector(27.5, 20.188294, 0), Vector(0, 0, 1), 3), False)
sketch12.addConstraint([
    Sketcher.Constraint("Diameter", 0, Q("6 mm")),
    Sketcher.Constraint("DistanceX", -1, 1, 0, 3, Q("27.5 mm")),
    Sketcher.Constraint("DistanceY", -1, 1, 0, 3, Q("20.188294 mm")),
])
pocket5 = doc.addObject("PartDesign::Pocket", "Pocket004")
body.addObject(pocket5)
pocket5.Profile = sketch12
pocket5.Type = "TwoLengths"
pocket5.Length = 116.586798
pocket5.Length2 = 3
pocket5.Reversed = True

# Sketch on XZ plane
sketch13 = doc.addObject("Sketcher::SketchObject", "Sketch012")
body.addObject(sketch13)
sketch13.AttachmentSupport = (doc.XZ_Plane, [""])
sketch13.MapMode = "FlatFace"
sketch13.AttachmentOffset = App.Placement(Vector(0, 0, -5), App.Rotation())
sketch13.addGeometry([
    Part.LineSegment(Vector(-29.858926, 31.188294, 0), Vector(-34.858926, 31.188294, 0)),
    Part.LineSegment(Vector(-34.858926, 31.188294, 0), Vector(-29.858926, 26.188294, 0)),
    Part.LineSegment(Vector(-29.858926, 26.188294, 0), Vector(-29.858926, 31.188294, 0)),
], False)
sketch13.addConstraint([
    Sketcher.Constraint("Coincident", 0, 2, 1, 1),
    Sketcher.Constraint("Coincident", 1, 2, 2, 1),
    Sketcher.Constraint("Coincident", 2, 2, 0, 1),
    Sketcher.Constraint("Horizontal", 0),
    Sketcher.Constraint("Vertical", 2),
    Sketcher.Constraint("Equal", 0, 2),
    Sketcher.Constraint("DistanceX", 0, 2, 0, 1, Q("5 mm")),
    Sketcher.Constraint("DistanceX", 0, 2, -1, 1, Q("34.858926 mm")),
    Sketcher.Constraint("DistanceY", -1, 1, 0, 2, Q("31.188294 mm")),
])
pad8 = doc.addObject("PartDesign::Pad", "Pad007")
body.addObject(pad8)
pad8.Profile = sketch13
pad8.Length = 45
pad8.Reversed = True

# Sketch on YZ plane
sketch14 = doc.addObject("Sketcher::SketchObject", "Sketch013")
body.addObject(sketch14)
sketch14.AttachmentSupport = (doc.YZ_Plane, [""])
sketch14.MapMode = "FlatFace"
sketch14.AttachmentOffset = App.Placement(Vector(0, 0, -24.858926), App.Rotation())
sketch14.addGeometry(Part.Circle(Vector(27.5, 20.188294, 0), Vector(0, 0, 1), 9.319081), False)
sketch14.addConstraint([
    Sketcher.Constraint("DistanceX", -1, 1, 0, 3, Q("27.5 mm")),
    Sketcher.Constraint("Diameter", 0, Q("18.638161 mm")),
    Sketcher.Constraint("DistanceY", -1, 1, 0, 3, Q("20.188294 mm")),
])
pocket6 = doc.addObject("PartDesign::Pocket", "Pocket005")
body.addObject(pocket6)
pocket6.Profile = sketch14
pocket6.Length = 38
pocket6.Reversed = True

# Sketch on YZ plane
sketch15 = doc.addObject("Sketcher::SketchObject", "Sketch014")
body.addObject(sketch15)
sketch15.AttachmentSupport = (doc.YZ_Plane, [""])
sketch15.MapMode = "FlatFace"
sketch15.AttachmentOffset = App.Placement(Vector(0, 0, -24.858926), App.Rotation())
sketch15.addGeometry(Part.Circle(Vector(30, 20.188294, 0), Vector(0, 0, 1), 6), False)
sketch15.addConstraint([
    Sketcher.Constraint("Diameter", 0, Q("12 mm")),
    Sketcher.Constraint("DistanceX", -1, 1, 0, 3, Q("30 mm")),
    Sketcher.Constraint("DistanceY", -1, 1, 0, 3, Q("20.188294 mm")),
])
pad9 = doc.addObject("PartDesign::Pad", "Pad008")
body.addObject(pad9)
pad9.Profile = sketch15
pad9.Length = 7.4

# Sketch on YZ plane
sketch16 = doc.addObject("Sketcher::SketchObject", "Sketch015")
body.addObject(sketch16)
sketch16.AttachmentSupport = (doc.YZ_Plane, [""])
sketch16.MapMode = "FlatFace"
sketch16.AttachmentOffset = App.Placement(Vector(0, 0, -17.458926), App.Rotation())
sketch16.addGeometry(Part.Circle(Vector(30, 20.188294, 0), Vector(0, 0, 1), 3), False)
sketch16.addConstraint([
    Sketcher.Constraint("Diameter", 0, Q("6 mm")),
    Sketcher.Constraint("DistanceX", -1, 1, 0, 3, Q("30 mm")),
    Sketcher.Constraint("DistanceY", -1, 1, 0, 3, Q("20.188294 mm")),
])
pocket7 = doc.addObject("PartDesign::Pocket", "Pocket006")
body.addObject(pocket7)
pocket7.Profile = sketch16
pocket7.Length = 5

# Sketch on XZ plane
sketch17 = doc.addObject("Sketcher::SketchObject", "Sketch016")
body.addObject(sketch17)
sketch17.AttachmentSupport = (doc.XZ_Plane, [""])
sketch17.MapMode = "FlatFace"
sketch17.AttachmentOffset = App.Placement(Vector(0, 0, -10), App.Rotation())
sketch17.addGeometry([
    Part.LineSegment(Vector(-105.858926, -54.811706, 0), Vector(-105.858926, -39.811706, 0)),
    Part.LineSegment(Vector(-105.858926, -39.811706, 0), Vector(-75.858926, -39.811706, 0)),
    Part.LineSegment(Vector(-75.858926, -39.811706, 0), Vector(-75.858926, -54.811706, 0)),
    Part.LineSegment(Vector(-75.858926, -54.811706, 0), Vector(-105.858926, -54.811706, 0)),
], False)
sketch17.addConstraint([
    Sketcher.Constraint("Coincident", 0, 2, 1, 1),
    Sketcher.Constraint("Coincident", 1, 2, 2, 1),
    Sketcher.Constraint("Coincident", 2, 2, 3, 1),
    Sketcher.Constraint("Coincident", 3, 2, 0, 1),
    Sketcher.Constraint("Vertical", 0),
    Sketcher.Constraint("Horizontal", 1),
    Sketcher.Constraint("Vertical", 2),
    Sketcher.Constraint("Horizontal", 3),
    Sketcher.Constraint("DistanceX", 1, 1, 1, 2, Q("30 mm")),
    Sketcher.Constraint("DistanceY", 0, 1, 0, 2, Q("15 mm")),
    Sketcher.Constraint("DistanceX", 0, 2, -1, 1, Q("105.858926 mm")),
    Sketcher.Constraint("DistanceY", 0, 2, -1, 1, Q("39.811706 mm")),
])
pad10 = doc.addObject("PartDesign::Pad", "Pad009")
body.addObject(pad10)
pad10.Profile = sketch17
pad10.Length = 14.850514

# Sketch on XZ plane
sketch18 = doc.addObject("Sketcher::SketchObject", "Sketch017")
body.addObject(sketch18)
sketch18.AttachmentSupport = (doc.XZ_Plane, [""])
sketch18.MapMode = "FlatFace"
sketch18.AttachmentOffset = App.Placement(Vector(0, 0, -10), App.Rotation())
sketch18.addGeometry([
    Part.LineSegment(Vector(-43.858926, -56.720657, 0), Vector(-43.858926, -39.811706, 0)),
    Part.LineSegment(Vector(-43.858926, -39.811706, 0), Vector(-19.858926, -39.811706, 0)),
    Part.LineSegment(Vector(-19.858926, -39.811706, 0), Vector(-19.858926, -56.720657, 0)),
    Part.LineSegment(Vector(-19.858926, -56.720657, 0), Vector(-43.858926, -56.720657, 0)),
], False)
sketch18.addConstraint([
    Sketcher.Constraint("Coincident", 0, 2, 1, 1),
    Sketcher.Constraint("Coincident", 1, 2, 2, 1),
    Sketcher.Constraint("Coincident", 2, 2, 3, 1),
    Sketcher.Constraint("Coincident", 3, 2, 0, 1),
    Sketcher.Constraint("Vertical", 0),
    Sketcher.Constraint("Horizontal", 1),
    Sketcher.Constraint("Vertical", 2),
    Sketcher.Constraint("Horizontal", 3),
    Sketcher.Constraint("DistanceX", 1, 1, 1, 2, Q("24 mm")),
    Sketcher.Constraint("DistanceY", 0, 1, 0, 2, Q("16.908951 mm")),
    Sketcher.Constraint("DistanceX", 0, 2, -1, 1, Q("43.858926 mm")),
    Sketcher.Constraint("DistanceY", 0, 2, -1, 1, Q("39.811706 mm")),
])
pad11 = doc.addObject("PartDesign::Pad", "Pad010")
body.addObject(pad11)
pad11.Profile = sketch18
pad11.Length = 14.850514

# Sketch on XZ plane
sketch19 = doc.addObject("Sketcher::SketchObject", "Sketch018")
body.addObject(sketch19)
sketch19.AttachmentSupport = (doc.XZ_Plane, [""])
sketch19.MapMode = "FlatFace"
sketch19.AttachmentOffset = App.Placement(Vector(0, 0, -10), App.Rotation())
sketch19.addGeometry(Part.Circle(Vector(-29.742749, -45.141182, 0), Vector(0, 0, 1), 4.25), False)
sketch19.addConstraint([
    Sketcher.Constraint("Diameter", 0, Q("8.5 mm")),
    Sketcher.Constraint("DistanceX", 0, 3, -1, 1, Q("29.742749 mm")),
    Sketcher.Constraint("DistanceY", 0, 3, -1, 1, Q("45.141182 mm")),
])
pocket8 = doc.addObject("PartDesign::Pocket", "Pocket007")
body.addObject(pocket8)
pocket8.Profile = sketch19
pocket8.Length = 60
pocket8.Reversed = True

# Sketch on XZ plane
sketch20 = doc.addObject("Sketcher::SketchObject", "Sketch019")
body.addObject(sketch20)
sketch20.AttachmentSupport = (doc.XZ_Plane, [""])
sketch20.MapMode = "FlatFace"
sketch20.AttachmentOffset = App.Placement(Vector(0, 0, 4.850514), App.Rotation())
sketch20.addGeometry([
    Part.LineSegment(Vector(-43.858926, 40.188294, 0), Vector(-43.858926, 57.097246, 0)),
    Part.LineSegment(Vector(-43.858926, 57.097246, 0), Vector(-19.742749, 40.233287, 0)),
    Part.LineSegment(Vector(-19.742749, 40.233287, 0), Vector(-19.742749, 40.188294, 0)),
    Part.LineSegment(Vector(-19.742749, 40.188294, 0), Vector(-43.858926, 40.188294, 0)),
], False)
sketch20.addConstraint([
    Sketcher.Constraint("Coincident", 0, 2, 1, 1),
    Sketcher.Constraint("Coincident", 1, 2, 2, 1),
    Sketcher.Constraint("Coincident", 2, 2, 3, 1),
    Sketcher.Constraint("Coincident", 3, 2, 0, 1),
    Sketcher.Constraint("Vertical", 0),
    Sketcher.Constraint("Vertical", 2),
    Sketcher.Constraint("Horizontal", 3),
    Sketcher.Constraint("DistanceY", 0, 1, 0, 2, Q("16.908951 mm")),
    Sketcher.Constraint("Distance", 1, Q("29.427591 mm")),
    Sketcher.Constraint("DistanceX", 3, 2, 3, 1, Q("24.116177 mm")),
    Sketcher.Constraint("DistanceX", 1, 2, -1, 1, Q("19.742749 mm")),
    Sketcher.Constraint("DistanceY", -1, 1, 0, 2, Q("57.097246 mm")),
])
pad12 = doc.addObject("PartDesign::Pad", "Pad011")
body.addObject(pad12)
pad12.Profile = sketch20
pad12.Length = 14.850514
pad12.Reversed = True

# Sketch on XZ plane
sketch21 = doc.addObject("Sketcher::SketchObject", "Sketch020")
body.addObject(sketch21)
sketch21.AttachmentSupport = (doc.XZ_Plane, [""])
sketch21.MapMode = "FlatFace"
sketch21.AttachmentOffset = App.Placement(Vector(0, 0, -10), App.Rotation())
sketch21.addGeometry(Part.Circle(Vector(-29.742749, 45.51777, 0), Vector(0, 0, 1), 4.25), False)
sketch21.addConstraint([
    Sketcher.Constraint("Diameter", 0, Q("8.5 mm")),
    Sketcher.Constraint("DistanceX", 0, 3, -1, 1, Q("29.742749 mm")),
    Sketcher.Constraint("DistanceY", -1, 1, 0, 3, Q("45.51777 mm")),
])
pocket9 = doc.addObject("PartDesign::Pocket", "Pocket008")
body.addObject(pocket9)
pocket9.Profile = sketch21
pocket9.Length = 60
pocket9.Reversed = True

# Sketch on XZ plane
sketch22 = doc.addObject("Sketcher::SketchObject", "Sketch021")
body.addObject(sketch22)
sketch22.AttachmentSupport = (doc.XZ_Plane, [""])
sketch22.MapMode = "FlatFace"
sketch22.AttachmentOffset = App.Placement(Vector(0, 0, -10), App.Rotation())
sketch22.addGeometry(Part.Circle(Vector(-89.742749, -45.141182, 0), Vector(0, 0, 1), 4.25), False)
sketch22.addConstraint([
    Sketcher.Constraint("Diameter", 0, Q("8.5 mm")),
    Sketcher.Constraint("DistanceX", 0, 3, -1, 1, Q("89.742749 mm")),
    Sketcher.Constraint("DistanceY", 0, 3, -1, 1, Q("45.141182 mm")),
])
pocket10 = doc.addObject("PartDesign::Pocket", "Pocket009")
body.addObject(pocket10)
pocket10.Profile = sketch22
pocket10.Length = 60
pocket10.Reversed = True
body2 = doc.addObject("PartDesign::Body", "Body001")

# Sketch on XZ plane
sketch23 = doc.addObject("Sketcher::SketchObject", "Sketch022")
body2.addObject(sketch23)
sketch23.AttachmentSupport = (doc.getObject("XZ_Plane001"), [""])
sketch23.MapMode = "FlatFace"
sketch23.AttachmentOffset = App.Placement(Vector(0, 0, -10), App.Rotation())
sketch23.addGeometry([
    Part.LineSegment(Vector(-74.742749, 56.834669, 0), Vector(-105.858926, 40.188294, 0)),
    Part.LineSegment(Vector(-105.858926, 40.188294, 0), Vector(-105.858926, 57.097246, 0)),
    Part.LineSegment(Vector(-105.858926, 57.097246, 0), Vector(-74.742749, 57.097246, 0)),
    Part.LineSegment(Vector(-74.742749, 57.097246, 0), Vector(-74.742749, 56.834669, 0)),
], False)
sketch23.addConstraint([
    Sketcher.Constraint("Coincident", 0, 2, 1, 1),
    Sketcher.Constraint("Coincident", 1, 2, 2, 1),
    Sketcher.Constraint("Coincident", 2, 2, 3, 1),
    Sketcher.Constraint("Coincident", 3, 2, 0, 1),
    Sketcher.Constraint("Vertical", 1),
    Sketcher.Constraint("Horizontal", 2),
    Sketcher.Constraint("Vertical", 3),
    Sketcher.Constraint("DistanceY", 1, 1, 1, 2, Q("16.908951 mm")),
    Sketcher.Constraint("DistanceX", 2, 1, 2, 2, Q("31.116177 mm")),
    Sketcher.Constraint("DistanceY", 3, 2, 3, 1, Q("0.262577 mm")),
    Sketcher.Constraint("DistanceX", 2, 2, -1, 1, Q("74.742749 mm")),
    Sketcher.Constraint("DistanceY", -1, 1, 3, 2, Q("56.834669 mm")),
])
pad13 = doc.addObject("PartDesign::Pad", "Pad012")
body2.addObject(pad13)
pad13.Profile = sketch23
pad13.Length = 14.850514
body3 = doc.addObject("PartDesign::Body", "Body002")
body3.AllowCompound = True

# Sketch on XZ plane
sketch24 = doc.addObject("Sketcher::SketchObject", "Sketch023")
body3.addObject(sketch24)
sketch24.AttachmentSupport = (doc.getObject("XZ_Plane002"), [""])
sketch24.MapMode = "FlatFace"
sketch24.AttachmentOffset = App.Placement(Vector(0, 0, -10), App.Rotation())
sketch24.addGeometry([
    Part.LineSegment(Vector(-105.858926, 40.188294, 0), Vector(-105.858926, 61.534391, 0)),  # 0
    Part.LineSegment(Vector(-105.858926, 61.534391, 0), Vector(-67.814157, 61.534391, 0)),  # 1
    Part.LineSegment(Vector(-67.814157, 61.534391, 0), Vector(-67.814157, 40.188294, 0)),  # 2
    Part.LineSegment(Vector(-67.814157, 40.188294, 0), Vector(-105.858926, 40.188294, 0)),  # 3
    Part.LineSegment(Vector(-43.858926, 40.188294, 0), Vector(-43.858926, 57.097246, 0)),  # 4
    Part.LineSegment(Vector(-43.858926, 57.097246, 0), Vector(-19.159056, 57.097246, 0)),  # 5
    Part.LineSegment(Vector(-19.159056, 57.097246, 0), Vector(-19.159056, 40.188294, 0)),  # 6
    Part.LineSegment(Vector(-19.159056, 40.188294, 0), Vector(-43.858926, 40.188294, 0)),  # 7
], False)
sketch24.addConstraint([
    Sketcher.Constraint("Coincident", 0, 2, 1, 1),
    Sketcher.Constraint("Coincident", 1, 2, 2, 1),
    Sketcher.Constraint("Coincident", 2, 2, 3, 1),
    Sketcher.Constraint("Coincident", 3, 2, 0, 1),
    Sketcher.Constraint("Coincident", 4, 2, 5, 1),
    Sketcher.Constraint("Coincident", 5, 2, 6, 1),
    Sketcher.Constraint("Coincident", 6, 2, 7, 1),
    Sketcher.Constraint("Coincident", 7, 2, 4, 1),
    Sketcher.Constraint("Vertical", 0),
    Sketcher.Constraint("Horizontal", 1),
    Sketcher.Constraint("Vertical", 2),
    Sketcher.Constraint("Horizontal", 3),
    Sketcher.Constraint("Vertical", 4),
    Sketcher.Constraint("Horizontal", 5),
    Sketcher.Constraint("Vertical", 6),
    Sketcher.Constraint("Horizontal", 7),
    Sketcher.Constraint("Horizontal", 3, 2, 6, 2),
    Sketcher.Constraint("DistanceX", 0, 2, 4, 2, Q("62 mm")),
    Sketcher.Constraint("DistanceX", 1, 1, 1, 2, Q("38.044769 mm")),
    Sketcher.Constraint("DistanceX", 5, 1, 5, 2, Q("24.699869 mm")),
    Sketcher.Constraint("DistanceY", 4, 1, 4, 2, Q("16.908951 mm")),
    Sketcher.Constraint("DistanceY", 0, 1, 0, 2, Q("21.346097 mm")),
    Sketcher.Constraint("DistanceY", -1, 1, 0, 2, Q("61.534391 mm")),
    Sketcher.Constraint("DistanceX", 0, 2, -1, 1, Q("105.858926 mm")),
])
pad14 = doc.addObject("PartDesign::Pad", "Pad013")
body3.addObject(pad14)
pad14.Profile = sketch24
pad14.Length = 60
doc.recompute()

body4 = doc.addObject("PartDesign::Body", "Body003")
body4.BaseFeature = body3
boolean = doc.addObject("PartDesign::Boolean", "Boolean")
body.addObject(boolean)
boolean.Type = "Cut"
boolean.addObjects([body4])
doc.recompute()

mirrored = doc.addObject("PartDesign::Mirrored", "Mirrored")
body.addObject(mirrored)
mirrored.Originals = [pad10, pad11, pocket8, pocket10]
mirrored.MirrorPlane = (doc.XY_Plane, [""])
body.Tip = mirrored

# Sketch on XZ plane
sketch25 = doc.addObject("Sketcher::SketchObject", "Sketch024")
body.addObject(sketch25)
sketch25.AttachmentSupport = (doc.XZ_Plane, [""])
sketch25.MapMode = "FlatFace"
sketch25.AttachmentOffset = App.Placement(Vector(0, 0, -50), App.Rotation())
sketch25.addGeometry([
    Part.LineSegment(Vector(-36.180073, 18.281364, 0), Vector(-36.180073, 33.028592, 0)),
    Part.LineSegment(Vector(-36.180073, 33.028592, 0), Vector(-29.858926, 33.028592, 0)),
    Part.LineSegment(Vector(-29.858926, 33.028592, 0), Vector(-29.858926, 18.281364, 0)),
    Part.LineSegment(Vector(-29.858926, 18.281364, 0), Vector(-36.180073, 18.281364, 0)),
], False)
sketch25.addConstraint([
    Sketcher.Constraint("Coincident", 0, 2, 1, 1),
    Sketcher.Constraint("Coincident", 1, 2, 2, 1),
    Sketcher.Constraint("Coincident", 2, 2, 3, 1),
    Sketcher.Constraint("Coincident", 3, 2, 0, 1),
    Sketcher.Constraint("Vertical", 0),
    Sketcher.Constraint("Horizontal", 1),
    Sketcher.Constraint("Vertical", 2),
    Sketcher.Constraint("Horizontal", 3),
    Sketcher.Constraint("DistanceY", 0, 1, 0, 2, Q("14.747228 mm")),
    Sketcher.Constraint("DistanceX", 1, 1, 1, 2, Q("6.321148 mm")),
    Sketcher.Constraint("DistanceX", 0, 2, -1, 1, Q("36.180073 mm")),
    Sketcher.Constraint("DistanceY", -1, 1, 0, 2, Q("33.028592 mm")),
])
pocket11 = doc.addObject("PartDesign::Pocket", "Pocket010")
body.addObject(pocket11)
pocket11.Profile = sketch25
pocket11.Length = 39
pocket11.Reversed = True
doc.recompute()

boolean2 = doc.addObject("PartDesign::Boolean", "Boolean001")
body2.addObject(boolean2)
boolean2.Type = "Cut"
boolean2.addObjects([body3])

doc.recompute()
